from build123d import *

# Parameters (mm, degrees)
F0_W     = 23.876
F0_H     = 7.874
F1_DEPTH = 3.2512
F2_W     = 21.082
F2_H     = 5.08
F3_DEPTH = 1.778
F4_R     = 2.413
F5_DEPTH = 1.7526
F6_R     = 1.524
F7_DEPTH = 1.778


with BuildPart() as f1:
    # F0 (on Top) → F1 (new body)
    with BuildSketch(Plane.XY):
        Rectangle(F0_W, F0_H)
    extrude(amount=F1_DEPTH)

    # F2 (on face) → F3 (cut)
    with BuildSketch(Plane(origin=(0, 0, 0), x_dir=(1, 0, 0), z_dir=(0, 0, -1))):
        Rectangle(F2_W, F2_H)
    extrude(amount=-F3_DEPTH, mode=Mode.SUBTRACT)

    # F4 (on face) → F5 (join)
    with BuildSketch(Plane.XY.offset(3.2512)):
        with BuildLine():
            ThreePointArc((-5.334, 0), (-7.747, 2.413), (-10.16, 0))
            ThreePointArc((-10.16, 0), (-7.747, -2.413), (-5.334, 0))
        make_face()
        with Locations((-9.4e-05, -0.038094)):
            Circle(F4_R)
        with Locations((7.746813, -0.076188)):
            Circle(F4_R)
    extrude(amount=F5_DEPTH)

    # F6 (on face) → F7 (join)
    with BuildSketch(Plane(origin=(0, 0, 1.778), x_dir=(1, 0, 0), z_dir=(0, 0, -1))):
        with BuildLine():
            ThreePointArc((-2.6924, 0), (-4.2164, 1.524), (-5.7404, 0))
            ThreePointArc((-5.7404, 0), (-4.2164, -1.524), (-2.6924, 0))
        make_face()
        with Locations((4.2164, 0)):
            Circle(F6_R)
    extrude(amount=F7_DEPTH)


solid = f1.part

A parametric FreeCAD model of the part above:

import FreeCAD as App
import Part
import Sketcher
Q = App.Units.Quantity

doc = App.newDocument("Part")
body = doc.addObject("PartDesign::Body", "Body")

# Sketch on XY plane
sketch1 = body.newObject("Sketcher::SketchObject", "Sketch")
sketch1.AttachmentSupport = (doc.getObject("XY_Plane"), [""])
sketch1.MapMode = "FlatFace"
sketch1.addGeometry(Part.LineSegment(App.Vector(-11.938, 3.937, 0), App.Vector(-11.938, -3.937, 0)), False)
sketch1.addGeometry(Part.LineSegment(App.Vector(-11.938, -3.937, 0), App.Vector(11.938, -3.937, 0)), False)
sketch1.addGeometry(Part.LineSegment(App.Vector(11.938, -3.937, 0), App.Vector(11.938, 3.937, 0)), False)
sketch1.addGeometry(Part.LineSegment(App.Vector(11.938, 3.937, 0), App.Vector(-11.938, 3.937, 0)), False)
sketch1.addConstraint(Sketcher.Constraint("Coincident", 0, 2, 1, 1))
sketch1.addConstraint(Sketcher.Constraint("Coincident", 1, 2, 2, 1))
sketch1.addConstraint(Sketcher.Constraint("Coincident", 2, 2, 3, 1))
sketch1.addConstraint(Sketcher.Constraint("Coincident", 3, 2, 0, 1))
sketch1.addConstraint(Sketcher.Constraint("Vertical", 0))
sketch1.addConstraint(Sketcher.Constraint("Horizontal", 1))
sketch1.addConstraint(Sketcher.Constraint("Vertical", 2))
sketch1.addConstraint(Sketcher.Constraint("Horizontal", 3))
sketch1.addConstraint(Sketcher.Constraint("Symmetric", 0, 2, 2, 2, -1, 1))
sketch1.addConstraint(Sketcher.Constraint("DistanceX", 1, 1, 1, 2, Q("0.94 in")))
sketch1.addConstraint(Sketcher.Constraint("DistanceY", 0, 2, 0, 1, Q("0.31 in")))
pad1 = body.newObject("PartDesign::Pad", "Pad")
pad1.Profile = sketch1
pad1.Length = Q("0.128 in")

# Sketch on XY plane
sketch2 = body.newObject("Sketcher::SketchObject", "Sketch001")
sketch2.AttachmentSupport = (doc.getObject("XY_Plane"), [""])
sketch2.MapMode = "FlatFace"
sketch2.addGeometry(Part.LineSegment(App.Vector(-10.541, -2.54, 0), App.Vector(-10.541, 2.54, 0)), False)
sketch2.addGeometry(Part.LineSegment(App.Vector(-10.541, 2.54, 0), App.Vector(10.541, 2.54, 0)), False)
sketch2.addGeometry(Part.LineSegment(App.Vector(10.541, 2.54, 0), App.Vector(10.541, -2.54, 0)), False)
sketch2.addGeometry(Part.LineSegment(App.Vector(10.541, -2.54, 0), App.Vector(-10.541, -2.54, 0)), False)
sketch2.addConstraint(Sketcher.Constraint("Coincident", 0, 2, 1, 1))
sketch2.addConstraint(Sketcher.Constraint("Coincident", 1, 2, 2, 1))
sketch2.addConstraint(Sketcher.Constraint("Coincident", 2, 2, 3, 1))
sketch2.addConstraint(Sketcher.Constraint("Coincident", 3, 2, 0, 1))
sketch2.addConstraint(Sketcher.Constraint("Vertical", 0))
sketch2.addConstraint(Sketcher.Constraint("Horizontal", 1))
sketch2.addConstraint(Sketcher.Constraint("Vertical", 2))
sketch2.addConstraint(Sketcher.Constraint("Horizontal", 3))
sketch2.addConstraint(Sketcher.Constraint("Symmetric", 0, 2, 2, 2, -1, 1))
sketch2.addConstraint(Sketcher.Constraint("DistanceY", 0, 1, 0, 2, Q("0.2 in")))
sketch2.addConstraint(Sketcher.Constraint("DistanceX", 1, 1, 1, 2, Q("0.83 in")))
pocket1 = body.newObject("PartDesign::Pocket", "Pocket")
pocket1.Profile = sketch2
pocket1.Length = Q("0.07 in")
pocket1.Reversed = True

# Sketch on XY plane
sketch3 = body.newObject("Sketcher::SketchObject", "Sketch002")
sketch3.AttachmentSupport = (doc.getObject("XY_Plane"), [""])
sketch3.MapMode = "FlatFace"
sketch3.AttachmentOffset = App.Placement(App.Vector(0, 0, 0.128 * 25.4), App.Rotation())
sketch3.addGeometry(Part.Circle(App.Vector(-7.747, 0, 0), App.Vector(0, 0, 1), 2.413), False)
sketch3.addGeometry(Part.Circle(App.Vector(-0.000094, -0.038094, 0), App.Vector(0, 0, 1), 2.413), False)
sketch3.addGeometry(Part.Circle(App.Vector(7.746813, -0.076188, 0), App.Vector(0, 0, 1), 2.413), False)
sketch3.addConstraint(Sketcher.Constraint("Equal", 0, 1))
sketch3.addConstraint(Sketcher.Constraint("Equal", 1, 2))
sketch3.addConstraint(Sketcher.Constraint("PointOnObject", 0, 3, -1))
sketch3.addConstraint(Sketcher.Constraint("Diameter", 0, Q("0.19 in")))
sketch3.addConstraint(Sketcher.Constraint("DistanceX", 0, 3, -1, 1, Q("0.305 in")))
sketch3.addConstraint(Sketcher.Constraint("DistanceY", 2, 3, -1, 1, 0.076188))
sketch3.addConstraint(Sketcher.Constraint("DistanceY", 1, 3, -1, 1, 0.038094))
sketch3.addConstraint(Sketcher.Constraint("DistanceX", -1, 1, 2, 3, 7.746813))
sketch3.addConstraint(Sketcher.Constraint("DistanceX", 0, 3, 1, 3, 7.746906))
pad2 = body.newObject("PartDesign::Pad", "Pad001")
pad2.Profile = sketch3
pad2.Length = Q("0.069 in")

# Sketch on XY plane
sketch4 = body.newObject("Sketcher::SketchObject", "Sketch003")
sketch4.AttachmentSupport = (doc.getObject("XY_Plane"), [""])
sketch4.MapMode = "FlatFace"
sketch4.AttachmentOffset = App.Placement(App.Vector(0, 0, 0.07 * 25.4), App.Rotation())
sketch4.addGeometry(Part.Circle(App.Vector(-4.2164, 0, 0), App.Vector(0, 0, 1), 1.524), False)
sketch4.addGeometry(Part.Circle(App.Vector(4.2164, 0, 0), App.Vector(0, 0, 1), 1.524), False)
sketch4.addConstraint(Sketcher.Constraint("Equal", 0, 1))
sketch4.addConstraint(Sketcher.Constraint("Symmetric", 0, 3, 1, 3, -1, 1))
sketch4.addConstraint(Sketcher.Constraint("PointOnObject", 0, 3, -1))
sketch4.addConstraint(Sketcher.Constraint("Diameter", 0, Q("0.12 in")))
sketch4.addConstraint(Sketcher.Constraint("DistanceX", 0, 3, -1, 1, Q("0.166 in")))
pad3 = body.newObject("PartDesign::Pad", "Pad002")
pad3.Profile = sketch4
pad3.Length = Q("0.07 in")
pad3.Reversed = True

doc.recompute()
